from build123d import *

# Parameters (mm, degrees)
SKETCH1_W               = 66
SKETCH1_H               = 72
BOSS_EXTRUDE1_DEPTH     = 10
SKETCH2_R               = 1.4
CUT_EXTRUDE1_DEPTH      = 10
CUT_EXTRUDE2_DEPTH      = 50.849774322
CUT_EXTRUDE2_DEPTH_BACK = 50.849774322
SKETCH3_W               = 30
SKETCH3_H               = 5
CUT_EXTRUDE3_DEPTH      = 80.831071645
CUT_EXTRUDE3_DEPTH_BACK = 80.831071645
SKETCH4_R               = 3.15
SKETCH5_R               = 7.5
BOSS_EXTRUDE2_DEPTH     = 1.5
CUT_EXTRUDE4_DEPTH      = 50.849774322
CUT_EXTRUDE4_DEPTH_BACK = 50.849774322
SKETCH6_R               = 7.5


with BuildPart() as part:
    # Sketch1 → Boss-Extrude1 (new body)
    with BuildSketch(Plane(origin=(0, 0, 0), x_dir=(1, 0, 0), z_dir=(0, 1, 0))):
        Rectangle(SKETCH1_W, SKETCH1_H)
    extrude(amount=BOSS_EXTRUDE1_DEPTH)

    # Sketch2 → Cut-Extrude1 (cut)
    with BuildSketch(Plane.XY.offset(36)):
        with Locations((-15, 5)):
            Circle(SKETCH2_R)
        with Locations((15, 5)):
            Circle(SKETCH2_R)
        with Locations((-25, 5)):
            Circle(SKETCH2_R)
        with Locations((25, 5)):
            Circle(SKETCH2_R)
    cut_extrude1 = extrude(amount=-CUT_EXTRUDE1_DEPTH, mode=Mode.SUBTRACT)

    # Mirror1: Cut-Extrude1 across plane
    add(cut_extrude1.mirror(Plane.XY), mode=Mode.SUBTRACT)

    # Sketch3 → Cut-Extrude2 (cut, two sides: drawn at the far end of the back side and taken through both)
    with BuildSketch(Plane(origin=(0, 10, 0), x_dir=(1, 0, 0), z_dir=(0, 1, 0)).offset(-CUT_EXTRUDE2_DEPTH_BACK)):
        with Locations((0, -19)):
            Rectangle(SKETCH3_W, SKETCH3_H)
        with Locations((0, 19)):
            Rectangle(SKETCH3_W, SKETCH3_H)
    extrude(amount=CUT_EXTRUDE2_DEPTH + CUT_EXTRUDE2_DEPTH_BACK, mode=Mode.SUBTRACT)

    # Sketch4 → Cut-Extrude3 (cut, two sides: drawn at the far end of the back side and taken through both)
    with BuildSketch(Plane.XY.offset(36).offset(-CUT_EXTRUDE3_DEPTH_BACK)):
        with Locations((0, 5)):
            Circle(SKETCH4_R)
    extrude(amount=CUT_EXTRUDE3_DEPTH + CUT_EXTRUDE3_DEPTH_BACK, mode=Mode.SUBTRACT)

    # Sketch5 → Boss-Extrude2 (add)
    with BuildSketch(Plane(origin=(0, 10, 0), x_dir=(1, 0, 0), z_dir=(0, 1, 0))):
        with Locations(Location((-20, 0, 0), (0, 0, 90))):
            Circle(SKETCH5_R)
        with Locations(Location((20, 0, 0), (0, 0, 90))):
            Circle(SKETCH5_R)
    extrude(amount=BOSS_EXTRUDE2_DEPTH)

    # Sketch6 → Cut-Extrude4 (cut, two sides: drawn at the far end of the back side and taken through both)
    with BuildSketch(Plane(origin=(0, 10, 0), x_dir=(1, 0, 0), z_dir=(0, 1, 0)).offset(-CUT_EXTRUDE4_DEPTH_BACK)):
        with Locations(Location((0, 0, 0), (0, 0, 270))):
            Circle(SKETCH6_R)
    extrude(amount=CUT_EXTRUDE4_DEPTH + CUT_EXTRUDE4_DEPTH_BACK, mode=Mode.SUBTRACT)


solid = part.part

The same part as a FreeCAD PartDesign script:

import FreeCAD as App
import Part
import Sketcher
from FreeCAD import Vector


def add_polygon(sketch, points):
    """Adds a closed chain of lines whose ends are joined by coincident constraints."""
    first, n = sketch.GeometryCount, len(points)
    for a, b in zip(points, points[1:] + points[:1]):
        sketch.addGeometry(Part.LineSegment(App.Vector(*a, 0), App.Vector(*b, 0)), False)
    for i in range(n):
        sketch.addConstraint(Sketcher.Constraint("Coincident", first + i, 2, first + (i + 1) % n, 1))

doc = App.newDocument("Part")
body = doc.addObject("PartDesign::Body", "Body")

# Sketch on XZ plane
sketch1 = doc.addObject("Sketcher::SketchObject", "Sketch")
body.addObject(sketch1)
sketch1.AttachmentSupport = (doc.XZ_Plane, [""])
sketch1.MapMode = "FlatFace"
add_polygon(sketch1, [(-33, -36), (-33, 36), (33, 36), (33, -36)])  # lines 0-3
sketch1.addConstraint([
    Sketcher.Constraint("Vertical", 0),
    Sketcher.Constraint("Horizontal", 1),
    Sketcher.Constraint("Vertical", 2),
    Sketcher.Constraint("Horizontal", 3),
    Sketcher.Constraint("Symmetric", 0, 2, 2, 2, -1, 1),
    Sketcher.Constraint("DistanceX", 1, 1, 1, 2, 66.0),
    Sketcher.Constraint("DistanceY", 0, 1, 0, 2, 72.0),
])
pad1 = doc.addObject("PartDesign::Pad", "Pad")
body.addObject(pad1)
pad1.Profile = sketch1
pad1.Length = 10
pad1.Reversed = True

# Sketch on XY plane
sketch2 = doc.addObject("Sketcher::SketchObject", "Sketch001")
body.addObject(sketch2)
sketch2.AttachmentSupport = (doc.XY_Plane, [""])
sketch2.MapMode = "FlatFace"
sketch2.AttachmentOffset = App.Placement(Vector(0, 0, 36), App.Rotation())
sketch2.addGeometry([
    Part.Circle(Vector(-15, 5, 0), Vector(0, 0, 1), 1.4),
    Part.Circle(Vector(15, 5, 0), Vector(0, 0, 1), 1.4),
    Part.Circle(Vector(-25, 5, 0), Vector(0, 0, 1), 1.4),
    Part.Circle(Vector(25, 5, 0), Vector(0, 0, 1), 1.4),
], False)
sketch2.addConstraint([
    Sketcher.Constraint("Equal", 0, 1),
    Sketcher.Constraint("Equal", 1, 2),
    Sketcher.Constraint("Equal", 2, 3),
    Sketcher.Constraint("Symmetric", 0, 3, 1, 3, -2),
    Sketcher.Constraint("Symmetric", 2, 3, 3, 3, -2),
    Sketcher.Constraint("Horizontal", 1, 3, 2, 3),
    Sketcher.Constraint("Diameter", 0, 2.8),
    Sketcher.Constraint("DistanceX", 0, 3, -1, 1, 15.0),
    Sketcher.Constraint("DistanceY", -1, 1, 0, 3, 5.0),
    Sketcher.Constraint("DistanceX", 2, 3, -1, 1, 25.0),
])
pocket1 = doc.addObject("PartDesign::Pocket", "Pocket")
body.addObject(pocket1)
pocket1.Profile = sketch2
pocket1.Length = 10
doc.recompute()

mirrored = doc.addObject("PartDesign::Mirrored", "Mirrored")
body.addObject(mirrored)
mirrored.Originals = [pocket1]
mirrored.MirrorPlane = (doc.XY_Plane, [""])
body.Tip = mirrored

# Sketch on XZ plane
sketch3 = doc.addObject("Sketcher::SketchObject", "Sketch002")
body.addObject(sketch3)
sketch3.AttachmentSupport = (doc.XZ_Plane, [""])
sketch3.MapMode = "FlatFace"
sketch3.AttachmentOffset = App.Placement(Vector(0, 0, -10), App.Rotation())
add_polygon(sketch3, [(-15, 16.5), (-15, 21.5), (15, 21.5), (15, 16.5)])  # lines 0-3
add_polygon(sketch3, [(-15, -21.5), (-15, -16.5), (15, -16.5), (15, -21.5)])  # lines 4-7
sketch3.addConstraint([
    Sketcher.Constraint("Vertical", 0),
    Sketcher.Constraint("Horizontal", 1),
    Sketcher.Constraint("Vertical", 2),
    Sketcher.Constraint("Horizontal", 3),
    Sketcher.Constraint("Vertical", 4),
    Sketcher.Constraint("Horizontal", 5),
    Sketcher.Constraint("Vertical", 6),
    Sketcher.Constraint("Horizontal", 7),
    Sketcher.Constraint("Symmetric", 2, 2, 4, 2, -1, 1),
    Sketcher.Constraint("Symmetric", 0, 2, 6, 2, -1, 1),
    Sketcher.Constraint("Vertical", 3, 2, 4, 2),
    Sketcher.Constraint("DistanceX", 1, 1, 1, 2, 30.0),
    Sketcher.Constraint("DistanceY", 0, 1, 0, 2, 5.0),
    Sketcher.Constraint("DistanceY", 4, 2, 3, 2, 33.0),
])
pocket2 = doc.addObject("PartDesign::Pocket", "Pocket001")
body.addObject(pocket2)
pocket2.Profile = sketch3
pocket2.Type = "ThroughAll"
pocket2.Midplane = True

# Sketch on XY plane
sketch4 = doc.addObject("Sketcher::SketchObject", "Sketch003")
body.addObject(sketch4)
sketch4.AttachmentSupport = (doc.XY_Plane, [""])
sketch4.MapMode = "FlatFace"
sketch4.AttachmentOffset = App.Placement(Vector(0, 0, 36), App.Rotation())
sketch4.addGeometry(Part.Circle(Vector(0, 5, 0), Vector(0, 0, 1), 3.15), False)
sketch4.addConstraint([
    Sketcher.Constraint("PointOnObject", 0, 3, -2),
    Sketcher.Constraint("Diameter", 0, 6.3),
    Sketcher.Constraint("DistanceY", -1, 1, 0, 3, 5.0),
])
pocket3 = doc.addObject("PartDesign::Pocket", "Pocket002")
body.addObject(pocket3)
pocket3.Profile = sketch4
pocket3.Type = "ThroughAll"
pocket3.Midplane = True

# Sketch on XZ plane
sketch5 = doc.addObject("Sketcher::SketchObject", "Sketch004")
body.addObject(sketch5)
sketch5.AttachmentSupport = (doc.XZ_Plane, [""])
sketch5.MapMode = "FlatFace"
sketch5.AttachmentOffset = App.Placement(Vector(0, 0, -10), App.Rotation())
sketch5.addGeometry([
    Part.Circle(Vector(-20, 0, 0), Vector(0, 0, 1), 7.5),
    Part.Circle(Vector(20, 0, 0), Vector(0, 0, 1), 7.5),
], False)
sketch5.addConstraint([
    Sketcher.Constraint("Equal", 0, 1),
    Sketcher.Constraint("Symmetric", 0, 3, 1, 3, -1, 1),
    Sketcher.Constraint("PointOnObject", 0, 3, -1),
    Sketcher.Constraint("Diameter", 0, 15.0),
    Sketcher.Constraint("DistanceX", 0, 3, -1, 1, 20.0),
])
pad2 = doc.addObject("PartDesign::Pad", "Pad001")
body.addObject(pad2)
pad2.Profile = sketch5
pad2.Length = 1.5
pad2.Reversed = True

# Sketch on XZ plane
sketch6 = doc.addObject("Sketcher::SketchObject", "Sketch005")
body.addObject(sketch6)
sketch6.AttachmentSupport = (doc.XZ_Plane, [""])
sketch6.MapMode = "FlatFace"
sketch6.AttachmentOffset = App.Placement(Vector(0, 0, -10), App.Rotation())
sketch6.addGeometry(Part.Circle(Vector(0, 0, 0), Vector(0, 0, 1), 7.5), False)
sketch6.addConstraint([
    Sketcher.Constraint("Coincident", 0, 3, -1, 1),
    Sketcher.Constraint("Diameter", 0, 15.0),
])
pocket4 = doc.addObject("PartDesign::Pocket", "Pocket003")
body.addObject(pocket4)
pocket4.Profile = sketch6
pocket4.Type = "ThroughAll"
pocket4.Midplane = True

doc.recompute()
